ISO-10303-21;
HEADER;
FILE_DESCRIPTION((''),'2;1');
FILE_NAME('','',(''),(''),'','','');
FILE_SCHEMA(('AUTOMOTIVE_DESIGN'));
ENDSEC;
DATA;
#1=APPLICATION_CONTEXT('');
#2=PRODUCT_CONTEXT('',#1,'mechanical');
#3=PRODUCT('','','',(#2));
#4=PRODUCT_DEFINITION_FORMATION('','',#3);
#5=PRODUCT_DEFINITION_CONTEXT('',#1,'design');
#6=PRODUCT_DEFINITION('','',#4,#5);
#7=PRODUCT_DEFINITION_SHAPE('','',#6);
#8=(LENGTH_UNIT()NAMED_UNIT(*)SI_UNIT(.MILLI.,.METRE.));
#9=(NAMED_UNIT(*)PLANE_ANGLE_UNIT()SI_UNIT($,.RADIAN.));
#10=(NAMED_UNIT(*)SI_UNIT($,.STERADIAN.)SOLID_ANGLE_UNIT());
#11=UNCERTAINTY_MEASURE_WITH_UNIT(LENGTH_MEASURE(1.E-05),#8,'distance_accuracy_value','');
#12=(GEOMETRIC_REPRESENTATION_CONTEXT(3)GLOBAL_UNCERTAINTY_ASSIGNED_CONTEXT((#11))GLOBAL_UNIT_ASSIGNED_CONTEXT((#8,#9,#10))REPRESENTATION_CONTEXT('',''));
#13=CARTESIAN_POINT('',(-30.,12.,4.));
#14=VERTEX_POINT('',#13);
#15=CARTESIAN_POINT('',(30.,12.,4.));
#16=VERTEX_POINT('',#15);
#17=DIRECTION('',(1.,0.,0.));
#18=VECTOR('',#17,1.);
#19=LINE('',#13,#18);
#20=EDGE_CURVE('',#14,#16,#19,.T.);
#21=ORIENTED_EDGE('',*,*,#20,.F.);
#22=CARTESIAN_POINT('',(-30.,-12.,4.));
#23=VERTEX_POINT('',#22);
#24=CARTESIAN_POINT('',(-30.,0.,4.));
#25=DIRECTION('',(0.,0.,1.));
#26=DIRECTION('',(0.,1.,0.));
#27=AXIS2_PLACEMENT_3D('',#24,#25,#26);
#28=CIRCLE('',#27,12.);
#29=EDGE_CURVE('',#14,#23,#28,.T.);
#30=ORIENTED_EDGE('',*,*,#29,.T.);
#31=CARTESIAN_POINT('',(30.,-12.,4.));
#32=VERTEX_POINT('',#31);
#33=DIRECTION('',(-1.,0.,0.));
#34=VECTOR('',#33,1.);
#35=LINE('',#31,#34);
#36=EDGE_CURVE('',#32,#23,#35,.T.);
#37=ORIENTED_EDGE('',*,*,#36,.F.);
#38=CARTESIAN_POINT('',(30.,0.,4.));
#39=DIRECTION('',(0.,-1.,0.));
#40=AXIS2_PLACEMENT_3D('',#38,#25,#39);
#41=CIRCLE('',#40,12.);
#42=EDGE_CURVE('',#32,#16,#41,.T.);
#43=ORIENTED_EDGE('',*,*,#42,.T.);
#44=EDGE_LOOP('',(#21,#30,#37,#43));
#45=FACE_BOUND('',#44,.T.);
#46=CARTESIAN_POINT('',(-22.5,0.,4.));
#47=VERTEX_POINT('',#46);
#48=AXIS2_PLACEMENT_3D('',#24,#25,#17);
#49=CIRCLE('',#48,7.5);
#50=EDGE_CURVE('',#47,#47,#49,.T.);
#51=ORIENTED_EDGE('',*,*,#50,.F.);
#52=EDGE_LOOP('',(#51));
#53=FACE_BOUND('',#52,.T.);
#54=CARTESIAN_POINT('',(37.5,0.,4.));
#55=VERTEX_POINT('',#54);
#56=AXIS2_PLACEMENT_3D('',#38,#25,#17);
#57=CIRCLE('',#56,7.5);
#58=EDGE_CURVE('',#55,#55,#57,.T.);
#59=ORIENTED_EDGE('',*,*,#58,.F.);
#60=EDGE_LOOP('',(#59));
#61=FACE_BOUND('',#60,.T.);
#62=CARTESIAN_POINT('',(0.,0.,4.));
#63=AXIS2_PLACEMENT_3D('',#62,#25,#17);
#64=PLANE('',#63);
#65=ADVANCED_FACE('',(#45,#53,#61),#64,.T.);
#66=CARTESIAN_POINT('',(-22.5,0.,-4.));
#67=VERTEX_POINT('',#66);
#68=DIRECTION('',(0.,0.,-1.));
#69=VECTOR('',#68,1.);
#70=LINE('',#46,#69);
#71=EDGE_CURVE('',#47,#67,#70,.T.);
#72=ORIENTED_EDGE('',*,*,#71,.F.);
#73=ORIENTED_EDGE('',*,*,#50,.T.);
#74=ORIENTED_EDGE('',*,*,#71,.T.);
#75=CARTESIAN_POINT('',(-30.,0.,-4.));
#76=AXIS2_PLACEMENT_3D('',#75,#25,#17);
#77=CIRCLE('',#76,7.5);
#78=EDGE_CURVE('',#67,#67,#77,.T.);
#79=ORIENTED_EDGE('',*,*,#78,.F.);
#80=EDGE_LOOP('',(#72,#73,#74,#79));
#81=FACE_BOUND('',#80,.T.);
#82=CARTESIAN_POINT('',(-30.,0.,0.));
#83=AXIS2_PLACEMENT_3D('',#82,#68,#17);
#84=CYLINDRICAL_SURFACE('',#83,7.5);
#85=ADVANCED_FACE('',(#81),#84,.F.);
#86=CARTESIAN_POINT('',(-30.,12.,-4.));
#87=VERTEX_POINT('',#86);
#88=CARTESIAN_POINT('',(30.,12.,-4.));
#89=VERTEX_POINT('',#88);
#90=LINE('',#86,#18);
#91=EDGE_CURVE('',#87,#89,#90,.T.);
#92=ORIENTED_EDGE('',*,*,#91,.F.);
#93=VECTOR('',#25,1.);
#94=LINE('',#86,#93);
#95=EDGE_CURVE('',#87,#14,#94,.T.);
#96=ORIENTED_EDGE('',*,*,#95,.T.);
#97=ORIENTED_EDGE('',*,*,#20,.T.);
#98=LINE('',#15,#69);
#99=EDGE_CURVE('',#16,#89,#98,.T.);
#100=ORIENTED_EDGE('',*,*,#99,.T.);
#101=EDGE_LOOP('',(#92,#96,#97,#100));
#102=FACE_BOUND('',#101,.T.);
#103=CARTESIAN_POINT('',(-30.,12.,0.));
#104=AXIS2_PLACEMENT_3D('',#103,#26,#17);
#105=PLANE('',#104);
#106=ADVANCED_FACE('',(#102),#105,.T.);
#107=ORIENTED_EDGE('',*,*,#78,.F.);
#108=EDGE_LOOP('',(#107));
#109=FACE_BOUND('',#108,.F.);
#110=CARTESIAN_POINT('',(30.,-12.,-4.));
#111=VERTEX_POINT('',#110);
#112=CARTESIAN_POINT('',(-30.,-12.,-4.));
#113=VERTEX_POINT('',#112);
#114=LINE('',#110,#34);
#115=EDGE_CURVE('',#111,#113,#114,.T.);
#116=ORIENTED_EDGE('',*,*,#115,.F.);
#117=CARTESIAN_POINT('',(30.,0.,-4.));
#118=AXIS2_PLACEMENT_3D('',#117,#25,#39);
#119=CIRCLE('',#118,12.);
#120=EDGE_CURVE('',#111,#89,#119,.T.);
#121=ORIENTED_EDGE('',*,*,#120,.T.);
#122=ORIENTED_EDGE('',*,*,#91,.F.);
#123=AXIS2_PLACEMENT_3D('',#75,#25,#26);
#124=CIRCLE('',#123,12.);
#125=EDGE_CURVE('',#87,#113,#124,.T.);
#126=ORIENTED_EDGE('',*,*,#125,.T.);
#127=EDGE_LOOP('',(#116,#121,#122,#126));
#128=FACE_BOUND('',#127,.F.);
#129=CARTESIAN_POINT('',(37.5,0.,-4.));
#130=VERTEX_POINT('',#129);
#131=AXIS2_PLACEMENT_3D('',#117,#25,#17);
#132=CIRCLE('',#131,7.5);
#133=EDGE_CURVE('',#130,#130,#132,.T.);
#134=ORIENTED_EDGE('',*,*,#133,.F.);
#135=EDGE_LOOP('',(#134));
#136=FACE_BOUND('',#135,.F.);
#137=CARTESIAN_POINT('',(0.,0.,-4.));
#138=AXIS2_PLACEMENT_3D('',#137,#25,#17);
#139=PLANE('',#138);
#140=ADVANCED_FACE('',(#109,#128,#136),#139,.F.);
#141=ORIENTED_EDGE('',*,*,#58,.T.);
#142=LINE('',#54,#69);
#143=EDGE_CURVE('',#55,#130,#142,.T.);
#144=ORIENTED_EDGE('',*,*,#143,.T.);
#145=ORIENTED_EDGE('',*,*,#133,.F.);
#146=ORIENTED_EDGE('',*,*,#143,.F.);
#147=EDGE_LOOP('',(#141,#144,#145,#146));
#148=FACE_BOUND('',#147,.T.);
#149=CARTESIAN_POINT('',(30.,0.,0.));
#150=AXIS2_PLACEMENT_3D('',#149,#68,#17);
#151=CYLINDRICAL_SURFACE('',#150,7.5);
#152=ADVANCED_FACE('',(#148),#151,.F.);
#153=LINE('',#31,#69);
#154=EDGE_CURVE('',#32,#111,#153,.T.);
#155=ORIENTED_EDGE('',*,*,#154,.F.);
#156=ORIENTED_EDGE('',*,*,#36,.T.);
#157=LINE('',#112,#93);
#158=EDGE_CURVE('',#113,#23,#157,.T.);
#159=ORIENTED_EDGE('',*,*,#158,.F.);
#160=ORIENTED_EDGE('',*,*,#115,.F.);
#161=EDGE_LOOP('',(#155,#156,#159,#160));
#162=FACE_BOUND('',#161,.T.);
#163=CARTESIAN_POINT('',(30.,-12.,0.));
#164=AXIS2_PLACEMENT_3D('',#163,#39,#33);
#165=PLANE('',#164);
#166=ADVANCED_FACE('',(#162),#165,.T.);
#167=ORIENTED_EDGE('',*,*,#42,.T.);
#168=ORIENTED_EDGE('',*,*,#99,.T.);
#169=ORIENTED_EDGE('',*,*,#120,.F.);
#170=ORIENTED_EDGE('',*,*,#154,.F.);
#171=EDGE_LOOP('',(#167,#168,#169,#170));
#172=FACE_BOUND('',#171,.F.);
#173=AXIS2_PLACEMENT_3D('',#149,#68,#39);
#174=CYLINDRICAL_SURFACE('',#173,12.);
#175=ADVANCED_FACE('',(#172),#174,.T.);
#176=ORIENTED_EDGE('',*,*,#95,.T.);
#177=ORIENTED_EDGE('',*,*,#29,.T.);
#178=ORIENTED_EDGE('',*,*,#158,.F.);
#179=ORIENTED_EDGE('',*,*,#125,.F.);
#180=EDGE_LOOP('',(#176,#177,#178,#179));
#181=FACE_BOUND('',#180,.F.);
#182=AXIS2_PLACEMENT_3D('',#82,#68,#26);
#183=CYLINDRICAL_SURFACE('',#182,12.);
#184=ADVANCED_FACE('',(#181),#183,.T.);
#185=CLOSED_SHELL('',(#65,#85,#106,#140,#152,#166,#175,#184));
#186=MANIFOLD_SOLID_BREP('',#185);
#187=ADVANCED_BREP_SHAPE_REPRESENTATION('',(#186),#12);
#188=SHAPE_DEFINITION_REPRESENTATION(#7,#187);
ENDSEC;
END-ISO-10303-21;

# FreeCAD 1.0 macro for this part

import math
import FreeCAD as App
import Part
import Sketcher

doc = App.newDocument("Part")
body = doc.addObject("PartDesign::Body", "Body")

# Sketch on XY plane
sketch1 = body.newObject("Sketcher::SketchObject", "Sketch")
sketch1.AttachmentSupport = (doc.getObject("XY_Plane"), [""])
sketch1.MapMode = "FlatFace"
sketch1.addGeometry([
    Part.LineSegment(App.Vector(30, 12, 0), App.Vector(-30, 12, 0)),  # 0
    Part.ArcOfCircle(Part.Circle(App.Vector(-30, 0, 0), App.Vector(0, 0, 1), 12), math.radians(90), math.radians(270)),  # 1
    Part.LineSegment(App.Vector(-30, -12, 0), App.Vector(30, -12, 0)),  # 2
    Part.ArcOfCircle(Part.Circle(App.Vector(30, 0, 0), App.Vector(0, 0, 1), 12), math.radians(-90), math.radians(90)),  # 3
    Part.Circle(App.Vector(-30, 0, 0), App.Vector(0, 0, 1), 8),  # 4
    Part.Circle(App.Vector(30, 0, 0), App.Vector(0, 0, 1), 8),  # 5
], False)
sketch1.addConstraint([
    Sketcher.Constraint("Tangent", 0, 2, 1, 1),
    Sketcher.Constraint("Tangent", 1, 2, 2, 1),
    Sketcher.Constraint("Tangent", 2, 2, 3, 1),
    Sketcher.Constraint("Tangent", 3, 2, 0, 1),
    Sketcher.Constraint("Horizontal", 0),
    Sketcher.Constraint("Horizontal", 2),
    Sketcher.Constraint("Coincident", 4, 3, 1, 3),
    Sketcher.Constraint("Coincident", 5, 3, 3, 3),
    Sketcher.Constraint("Equal", 4, 5),
    Sketcher.Constraint("Symmetric", 1, 3, 3, 3, -1, 1),
    Sketcher.Constraint("Diameter", 4, 15.0),
    Sketcher.Constraint("Radius", 1, 12.0),
    Sketcher.Constraint("DistanceX", 0, 2, 0, 1, 60.0),
])
pad1 = body.newObject("PartDesign::Pad", "Pad")
pad1.Profile = sketch1
pad1.Length = 8
pad1.Midplane = True

doc.recompute()
